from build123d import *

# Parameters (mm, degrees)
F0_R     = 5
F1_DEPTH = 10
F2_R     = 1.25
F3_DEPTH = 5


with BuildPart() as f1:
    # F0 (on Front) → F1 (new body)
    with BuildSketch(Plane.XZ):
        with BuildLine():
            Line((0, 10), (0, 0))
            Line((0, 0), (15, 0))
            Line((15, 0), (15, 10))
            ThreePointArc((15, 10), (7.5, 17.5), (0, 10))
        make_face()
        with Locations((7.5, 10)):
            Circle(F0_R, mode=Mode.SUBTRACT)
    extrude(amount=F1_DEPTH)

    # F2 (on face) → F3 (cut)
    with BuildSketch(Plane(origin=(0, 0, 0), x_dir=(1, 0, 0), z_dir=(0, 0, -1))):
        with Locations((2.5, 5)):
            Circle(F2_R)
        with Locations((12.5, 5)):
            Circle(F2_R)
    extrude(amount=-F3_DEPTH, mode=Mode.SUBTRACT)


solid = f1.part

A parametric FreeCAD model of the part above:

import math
import FreeCAD as App
import Part
import Sketcher

doc = App.newDocument("Part")
body = doc.addObject("PartDesign::Body", "Body")

# Sketch on XZ plane
sketch1 = body.newObject("Sketcher::SketchObject", "Sketch")
sketch1.AttachmentSupport = (doc.getObject("XZ_Plane"), [""])
sketch1.MapMode = "FlatFace"
sketch1.addGeometry([
    Part.LineSegment(App.Vector(0, 10, 0), App.Vector(0, 0, 0)),  # 0
    Part.LineSegment(App.Vector(0, 0, 0), App.Vector(15, 0, 0)),  # 1
    Part.LineSegment(App.Vector(15, 0, 0), App.Vector(15, 10, 0)),  # 2
    Part.ArcOfCircle(Part.Circle(App.Vector(8, 10, 0), App.Vector(0, 0, 1), 8), math.radians(0), math.radians(180)),  # 3
    Part.Circle(App.Vector(8, 10, 0), App.Vector(0, 0, 1), 5),  # 4
], False)
sketch1.addConstraint([
    Sketcher.Constraint("Coincident", 0, 2, 1, 1),
    Sketcher.Constraint("Coincident", 1, 2, 2, 1),
    Sketcher.Constraint("Tangent", 2, 2, 3, 1),
    Sketcher.Constraint("Tangent", 3, 2, 0, 1),
    Sketcher.Constraint("Vertical", 0),
    Sketcher.Constraint("Horizontal", 1),
    Sketcher.Constraint("Vertical", 2),
    Sketcher.Constraint("Coincident", 0, 2, -1, 1),
    Sketcher.Constraint("Coincident", 4, 3, 3, 3),
    Sketcher.Constraint("Diameter", 4, 10.0),
    Sketcher.Constraint("Radius", 3, 7.5),
    Sketcher.Constraint("DistanceY", 0, 2, 0, 1, 10.0),
])
pad1 = body.newObject("PartDesign::Pad", "Pad")
pad1.Profile = sketch1
pad1.Length = 10

# Sketch on XY plane
sketch2 = body.newObject("Sketcher::SketchObject", "Sketch001")
sketch2.AttachmentSupport = (doc.getObject("XY_Plane"), [""])
sketch2.MapMode = "FlatFace"
sketch2.addGeometry([
    Part.Circle(App.Vector(2.5, -5, 0), App.Vector(0, 0, 1), 1.2),
    Part.Circle(App.Vector(12.5, -5, 0), App.Vector(0, 0, 1), 1.2),
], False)
sketch2.addConstraint([
    Sketcher.Constraint("Equal", 0, 1),
    Sketcher.Constraint("Horizontal", 0, 3, 1, 3),
    Sketcher.Constraint("Diameter", 0, 2.5),
    Sketcher.Constraint("DistanceY", 0, 3, -1, 1, 5.0),
    Sketcher.Constraint("DistanceX", 0, 3, 1, 3, 10.0),
    Sketcher.Constraint("DistanceX", -1, 1, 0, 3, 2.5),
])
pocket1 = body.newObject("PartDesign::Pocket", "Pocket")
pocket1.Profile = sketch2
pocket1.Length = 5
pocket1.Reversed = True

doc.recompute()
